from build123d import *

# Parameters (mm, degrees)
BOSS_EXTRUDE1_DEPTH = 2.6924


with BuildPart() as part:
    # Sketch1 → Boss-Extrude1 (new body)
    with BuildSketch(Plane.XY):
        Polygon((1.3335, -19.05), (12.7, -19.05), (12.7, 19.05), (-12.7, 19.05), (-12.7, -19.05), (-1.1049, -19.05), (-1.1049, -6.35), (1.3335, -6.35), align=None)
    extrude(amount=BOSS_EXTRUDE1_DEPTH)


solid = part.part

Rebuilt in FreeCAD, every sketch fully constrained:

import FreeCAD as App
import Part
import Sketcher
Q = App.Units.Quantity

doc = App.newDocument("Part")
params = doc.addObject("Spreadsheet::Sheet", "Params")
for row, (alias, value) in enumerate([
    ("sketch1_width", "1 in"),
    ("sketch1_height", "1.5 in"),
    ("sketch1_height2", "0.5 in"),
    ("sketch1_width2", "0.096 in"),
    ("pad1_length", "0.106 in"),
], start=1):
    params.set(f"A{row}", alias)
    params.set(f"B{row}", "=" + value)
    params.setAlias(f"B{row}", alias)

body = doc.addObject("PartDesign::Body", "Body")

# Sketch on XY plane
sketch1 = doc.addObject("Sketcher::SketchObject", "Sketch")
body.addObject(sketch1)
sketch1.AttachmentSupport = (doc.XY_Plane, [""])
sketch1.MapMode = "FlatFace"
sketch1.addGeometry([
    Part.LineSegment(App.Vector(1.3, -19.1, 0), App.Vector(12.7, -19.1, 0)),  # 0
    Part.LineSegment(App.Vector(12.7, -19.1, 0), App.Vector(12.7, 19.1, 0)),  # 1
    Part.LineSegment(App.Vector(12.7, 19.1, 0), App.Vector(-12.7, 19.1, 0)),  # 2
    Part.LineSegment(App.Vector(-12.7, 19.1, 0), App.Vector(-12.7, -19.1, 0)),  # 3
    Part.LineSegment(App.Vector(-12.7, -19.1, 0), App.Vector(-1.1, -19.1, 0)),  # 4
    Part.LineSegment(App.Vector(-1.1, -19.1, 0), App.Vector(-1.1, -6.3, 0)),  # 5
    Part.LineSegment(App.Vector(-1.1, -6.3, 0), App.Vector(1.3, -6.3, 0)),  # 6
    Part.LineSegment(App.Vector(1.3, -6.3, 0), App.Vector(1.3, -19.1, 0)),  # 7
], False)
sketch1.addConstraint([
    Sketcher.Constraint("Coincident", 0, 2, 1, 1),
    Sketcher.Constraint("Coincident", 1, 2, 2, 1),
    Sketcher.Constraint("Coincident", 2, 2, 3, 1),
    Sketcher.Constraint("Coincident", 3, 2, 4, 1),
    Sketcher.Constraint("Coincident", 4, 2, 5, 1),
    Sketcher.Constraint("Coincident", 5, 2, 6, 1),
    Sketcher.Constraint("Coincident", 6, 2, 7, 1),
    Sketcher.Constraint("Coincident", 7, 2, 0, 1),
    Sketcher.Constraint("Horizontal", 0),
    Sketcher.Constraint("Vertical", 1),
    Sketcher.Constraint("Horizontal", 2),
    Sketcher.Constraint("Vertical", 3),
    Sketcher.Constraint("Horizontal", 4),
    Sketcher.Constraint("Vertical", 5),
    Sketcher.Constraint("Horizontal", 6),
    Sketcher.Constraint("Vertical", 7),
    Sketcher.Constraint("Symmetric", 0, 2, 2, 2, -1, 1),
    Sketcher.Constraint("Horizontal", 0, 2, 3, 2),
    Sketcher.Constraint("DistanceX", 2, 2, 2, 1, Q("1 in")),
    Sketcher.Constraint("DistanceY", 1, 1, 1, 2, Q("1.5 in")),
    Sketcher.Constraint("DistanceY", 5, 1, 5, 2, Q("0.5 in")),
    Sketcher.Constraint("DistanceX", 6, 1, 6, 2, Q("0.096 in")),
    Sketcher.Constraint("DistanceX", 0, 1, 0, 2, Q("0.4475 in")),
])
sketch1.setExpression("Constraints[18]", "Params.sketch1_width")
sketch1.setExpression("Constraints[19]", "Params.sketch1_height")
sketch1.setExpression("Constraints[20]", "Params.sketch1_height2")
sketch1.setExpression("Constraints[21]", "Params.sketch1_width2")
pad1 = doc.addObject("PartDesign::Pad", "Pad")
body.addObject(pad1)
pad1.Profile = sketch1
pad1.setExpression("Length", "Params.pad1_length")

doc.recompute()
